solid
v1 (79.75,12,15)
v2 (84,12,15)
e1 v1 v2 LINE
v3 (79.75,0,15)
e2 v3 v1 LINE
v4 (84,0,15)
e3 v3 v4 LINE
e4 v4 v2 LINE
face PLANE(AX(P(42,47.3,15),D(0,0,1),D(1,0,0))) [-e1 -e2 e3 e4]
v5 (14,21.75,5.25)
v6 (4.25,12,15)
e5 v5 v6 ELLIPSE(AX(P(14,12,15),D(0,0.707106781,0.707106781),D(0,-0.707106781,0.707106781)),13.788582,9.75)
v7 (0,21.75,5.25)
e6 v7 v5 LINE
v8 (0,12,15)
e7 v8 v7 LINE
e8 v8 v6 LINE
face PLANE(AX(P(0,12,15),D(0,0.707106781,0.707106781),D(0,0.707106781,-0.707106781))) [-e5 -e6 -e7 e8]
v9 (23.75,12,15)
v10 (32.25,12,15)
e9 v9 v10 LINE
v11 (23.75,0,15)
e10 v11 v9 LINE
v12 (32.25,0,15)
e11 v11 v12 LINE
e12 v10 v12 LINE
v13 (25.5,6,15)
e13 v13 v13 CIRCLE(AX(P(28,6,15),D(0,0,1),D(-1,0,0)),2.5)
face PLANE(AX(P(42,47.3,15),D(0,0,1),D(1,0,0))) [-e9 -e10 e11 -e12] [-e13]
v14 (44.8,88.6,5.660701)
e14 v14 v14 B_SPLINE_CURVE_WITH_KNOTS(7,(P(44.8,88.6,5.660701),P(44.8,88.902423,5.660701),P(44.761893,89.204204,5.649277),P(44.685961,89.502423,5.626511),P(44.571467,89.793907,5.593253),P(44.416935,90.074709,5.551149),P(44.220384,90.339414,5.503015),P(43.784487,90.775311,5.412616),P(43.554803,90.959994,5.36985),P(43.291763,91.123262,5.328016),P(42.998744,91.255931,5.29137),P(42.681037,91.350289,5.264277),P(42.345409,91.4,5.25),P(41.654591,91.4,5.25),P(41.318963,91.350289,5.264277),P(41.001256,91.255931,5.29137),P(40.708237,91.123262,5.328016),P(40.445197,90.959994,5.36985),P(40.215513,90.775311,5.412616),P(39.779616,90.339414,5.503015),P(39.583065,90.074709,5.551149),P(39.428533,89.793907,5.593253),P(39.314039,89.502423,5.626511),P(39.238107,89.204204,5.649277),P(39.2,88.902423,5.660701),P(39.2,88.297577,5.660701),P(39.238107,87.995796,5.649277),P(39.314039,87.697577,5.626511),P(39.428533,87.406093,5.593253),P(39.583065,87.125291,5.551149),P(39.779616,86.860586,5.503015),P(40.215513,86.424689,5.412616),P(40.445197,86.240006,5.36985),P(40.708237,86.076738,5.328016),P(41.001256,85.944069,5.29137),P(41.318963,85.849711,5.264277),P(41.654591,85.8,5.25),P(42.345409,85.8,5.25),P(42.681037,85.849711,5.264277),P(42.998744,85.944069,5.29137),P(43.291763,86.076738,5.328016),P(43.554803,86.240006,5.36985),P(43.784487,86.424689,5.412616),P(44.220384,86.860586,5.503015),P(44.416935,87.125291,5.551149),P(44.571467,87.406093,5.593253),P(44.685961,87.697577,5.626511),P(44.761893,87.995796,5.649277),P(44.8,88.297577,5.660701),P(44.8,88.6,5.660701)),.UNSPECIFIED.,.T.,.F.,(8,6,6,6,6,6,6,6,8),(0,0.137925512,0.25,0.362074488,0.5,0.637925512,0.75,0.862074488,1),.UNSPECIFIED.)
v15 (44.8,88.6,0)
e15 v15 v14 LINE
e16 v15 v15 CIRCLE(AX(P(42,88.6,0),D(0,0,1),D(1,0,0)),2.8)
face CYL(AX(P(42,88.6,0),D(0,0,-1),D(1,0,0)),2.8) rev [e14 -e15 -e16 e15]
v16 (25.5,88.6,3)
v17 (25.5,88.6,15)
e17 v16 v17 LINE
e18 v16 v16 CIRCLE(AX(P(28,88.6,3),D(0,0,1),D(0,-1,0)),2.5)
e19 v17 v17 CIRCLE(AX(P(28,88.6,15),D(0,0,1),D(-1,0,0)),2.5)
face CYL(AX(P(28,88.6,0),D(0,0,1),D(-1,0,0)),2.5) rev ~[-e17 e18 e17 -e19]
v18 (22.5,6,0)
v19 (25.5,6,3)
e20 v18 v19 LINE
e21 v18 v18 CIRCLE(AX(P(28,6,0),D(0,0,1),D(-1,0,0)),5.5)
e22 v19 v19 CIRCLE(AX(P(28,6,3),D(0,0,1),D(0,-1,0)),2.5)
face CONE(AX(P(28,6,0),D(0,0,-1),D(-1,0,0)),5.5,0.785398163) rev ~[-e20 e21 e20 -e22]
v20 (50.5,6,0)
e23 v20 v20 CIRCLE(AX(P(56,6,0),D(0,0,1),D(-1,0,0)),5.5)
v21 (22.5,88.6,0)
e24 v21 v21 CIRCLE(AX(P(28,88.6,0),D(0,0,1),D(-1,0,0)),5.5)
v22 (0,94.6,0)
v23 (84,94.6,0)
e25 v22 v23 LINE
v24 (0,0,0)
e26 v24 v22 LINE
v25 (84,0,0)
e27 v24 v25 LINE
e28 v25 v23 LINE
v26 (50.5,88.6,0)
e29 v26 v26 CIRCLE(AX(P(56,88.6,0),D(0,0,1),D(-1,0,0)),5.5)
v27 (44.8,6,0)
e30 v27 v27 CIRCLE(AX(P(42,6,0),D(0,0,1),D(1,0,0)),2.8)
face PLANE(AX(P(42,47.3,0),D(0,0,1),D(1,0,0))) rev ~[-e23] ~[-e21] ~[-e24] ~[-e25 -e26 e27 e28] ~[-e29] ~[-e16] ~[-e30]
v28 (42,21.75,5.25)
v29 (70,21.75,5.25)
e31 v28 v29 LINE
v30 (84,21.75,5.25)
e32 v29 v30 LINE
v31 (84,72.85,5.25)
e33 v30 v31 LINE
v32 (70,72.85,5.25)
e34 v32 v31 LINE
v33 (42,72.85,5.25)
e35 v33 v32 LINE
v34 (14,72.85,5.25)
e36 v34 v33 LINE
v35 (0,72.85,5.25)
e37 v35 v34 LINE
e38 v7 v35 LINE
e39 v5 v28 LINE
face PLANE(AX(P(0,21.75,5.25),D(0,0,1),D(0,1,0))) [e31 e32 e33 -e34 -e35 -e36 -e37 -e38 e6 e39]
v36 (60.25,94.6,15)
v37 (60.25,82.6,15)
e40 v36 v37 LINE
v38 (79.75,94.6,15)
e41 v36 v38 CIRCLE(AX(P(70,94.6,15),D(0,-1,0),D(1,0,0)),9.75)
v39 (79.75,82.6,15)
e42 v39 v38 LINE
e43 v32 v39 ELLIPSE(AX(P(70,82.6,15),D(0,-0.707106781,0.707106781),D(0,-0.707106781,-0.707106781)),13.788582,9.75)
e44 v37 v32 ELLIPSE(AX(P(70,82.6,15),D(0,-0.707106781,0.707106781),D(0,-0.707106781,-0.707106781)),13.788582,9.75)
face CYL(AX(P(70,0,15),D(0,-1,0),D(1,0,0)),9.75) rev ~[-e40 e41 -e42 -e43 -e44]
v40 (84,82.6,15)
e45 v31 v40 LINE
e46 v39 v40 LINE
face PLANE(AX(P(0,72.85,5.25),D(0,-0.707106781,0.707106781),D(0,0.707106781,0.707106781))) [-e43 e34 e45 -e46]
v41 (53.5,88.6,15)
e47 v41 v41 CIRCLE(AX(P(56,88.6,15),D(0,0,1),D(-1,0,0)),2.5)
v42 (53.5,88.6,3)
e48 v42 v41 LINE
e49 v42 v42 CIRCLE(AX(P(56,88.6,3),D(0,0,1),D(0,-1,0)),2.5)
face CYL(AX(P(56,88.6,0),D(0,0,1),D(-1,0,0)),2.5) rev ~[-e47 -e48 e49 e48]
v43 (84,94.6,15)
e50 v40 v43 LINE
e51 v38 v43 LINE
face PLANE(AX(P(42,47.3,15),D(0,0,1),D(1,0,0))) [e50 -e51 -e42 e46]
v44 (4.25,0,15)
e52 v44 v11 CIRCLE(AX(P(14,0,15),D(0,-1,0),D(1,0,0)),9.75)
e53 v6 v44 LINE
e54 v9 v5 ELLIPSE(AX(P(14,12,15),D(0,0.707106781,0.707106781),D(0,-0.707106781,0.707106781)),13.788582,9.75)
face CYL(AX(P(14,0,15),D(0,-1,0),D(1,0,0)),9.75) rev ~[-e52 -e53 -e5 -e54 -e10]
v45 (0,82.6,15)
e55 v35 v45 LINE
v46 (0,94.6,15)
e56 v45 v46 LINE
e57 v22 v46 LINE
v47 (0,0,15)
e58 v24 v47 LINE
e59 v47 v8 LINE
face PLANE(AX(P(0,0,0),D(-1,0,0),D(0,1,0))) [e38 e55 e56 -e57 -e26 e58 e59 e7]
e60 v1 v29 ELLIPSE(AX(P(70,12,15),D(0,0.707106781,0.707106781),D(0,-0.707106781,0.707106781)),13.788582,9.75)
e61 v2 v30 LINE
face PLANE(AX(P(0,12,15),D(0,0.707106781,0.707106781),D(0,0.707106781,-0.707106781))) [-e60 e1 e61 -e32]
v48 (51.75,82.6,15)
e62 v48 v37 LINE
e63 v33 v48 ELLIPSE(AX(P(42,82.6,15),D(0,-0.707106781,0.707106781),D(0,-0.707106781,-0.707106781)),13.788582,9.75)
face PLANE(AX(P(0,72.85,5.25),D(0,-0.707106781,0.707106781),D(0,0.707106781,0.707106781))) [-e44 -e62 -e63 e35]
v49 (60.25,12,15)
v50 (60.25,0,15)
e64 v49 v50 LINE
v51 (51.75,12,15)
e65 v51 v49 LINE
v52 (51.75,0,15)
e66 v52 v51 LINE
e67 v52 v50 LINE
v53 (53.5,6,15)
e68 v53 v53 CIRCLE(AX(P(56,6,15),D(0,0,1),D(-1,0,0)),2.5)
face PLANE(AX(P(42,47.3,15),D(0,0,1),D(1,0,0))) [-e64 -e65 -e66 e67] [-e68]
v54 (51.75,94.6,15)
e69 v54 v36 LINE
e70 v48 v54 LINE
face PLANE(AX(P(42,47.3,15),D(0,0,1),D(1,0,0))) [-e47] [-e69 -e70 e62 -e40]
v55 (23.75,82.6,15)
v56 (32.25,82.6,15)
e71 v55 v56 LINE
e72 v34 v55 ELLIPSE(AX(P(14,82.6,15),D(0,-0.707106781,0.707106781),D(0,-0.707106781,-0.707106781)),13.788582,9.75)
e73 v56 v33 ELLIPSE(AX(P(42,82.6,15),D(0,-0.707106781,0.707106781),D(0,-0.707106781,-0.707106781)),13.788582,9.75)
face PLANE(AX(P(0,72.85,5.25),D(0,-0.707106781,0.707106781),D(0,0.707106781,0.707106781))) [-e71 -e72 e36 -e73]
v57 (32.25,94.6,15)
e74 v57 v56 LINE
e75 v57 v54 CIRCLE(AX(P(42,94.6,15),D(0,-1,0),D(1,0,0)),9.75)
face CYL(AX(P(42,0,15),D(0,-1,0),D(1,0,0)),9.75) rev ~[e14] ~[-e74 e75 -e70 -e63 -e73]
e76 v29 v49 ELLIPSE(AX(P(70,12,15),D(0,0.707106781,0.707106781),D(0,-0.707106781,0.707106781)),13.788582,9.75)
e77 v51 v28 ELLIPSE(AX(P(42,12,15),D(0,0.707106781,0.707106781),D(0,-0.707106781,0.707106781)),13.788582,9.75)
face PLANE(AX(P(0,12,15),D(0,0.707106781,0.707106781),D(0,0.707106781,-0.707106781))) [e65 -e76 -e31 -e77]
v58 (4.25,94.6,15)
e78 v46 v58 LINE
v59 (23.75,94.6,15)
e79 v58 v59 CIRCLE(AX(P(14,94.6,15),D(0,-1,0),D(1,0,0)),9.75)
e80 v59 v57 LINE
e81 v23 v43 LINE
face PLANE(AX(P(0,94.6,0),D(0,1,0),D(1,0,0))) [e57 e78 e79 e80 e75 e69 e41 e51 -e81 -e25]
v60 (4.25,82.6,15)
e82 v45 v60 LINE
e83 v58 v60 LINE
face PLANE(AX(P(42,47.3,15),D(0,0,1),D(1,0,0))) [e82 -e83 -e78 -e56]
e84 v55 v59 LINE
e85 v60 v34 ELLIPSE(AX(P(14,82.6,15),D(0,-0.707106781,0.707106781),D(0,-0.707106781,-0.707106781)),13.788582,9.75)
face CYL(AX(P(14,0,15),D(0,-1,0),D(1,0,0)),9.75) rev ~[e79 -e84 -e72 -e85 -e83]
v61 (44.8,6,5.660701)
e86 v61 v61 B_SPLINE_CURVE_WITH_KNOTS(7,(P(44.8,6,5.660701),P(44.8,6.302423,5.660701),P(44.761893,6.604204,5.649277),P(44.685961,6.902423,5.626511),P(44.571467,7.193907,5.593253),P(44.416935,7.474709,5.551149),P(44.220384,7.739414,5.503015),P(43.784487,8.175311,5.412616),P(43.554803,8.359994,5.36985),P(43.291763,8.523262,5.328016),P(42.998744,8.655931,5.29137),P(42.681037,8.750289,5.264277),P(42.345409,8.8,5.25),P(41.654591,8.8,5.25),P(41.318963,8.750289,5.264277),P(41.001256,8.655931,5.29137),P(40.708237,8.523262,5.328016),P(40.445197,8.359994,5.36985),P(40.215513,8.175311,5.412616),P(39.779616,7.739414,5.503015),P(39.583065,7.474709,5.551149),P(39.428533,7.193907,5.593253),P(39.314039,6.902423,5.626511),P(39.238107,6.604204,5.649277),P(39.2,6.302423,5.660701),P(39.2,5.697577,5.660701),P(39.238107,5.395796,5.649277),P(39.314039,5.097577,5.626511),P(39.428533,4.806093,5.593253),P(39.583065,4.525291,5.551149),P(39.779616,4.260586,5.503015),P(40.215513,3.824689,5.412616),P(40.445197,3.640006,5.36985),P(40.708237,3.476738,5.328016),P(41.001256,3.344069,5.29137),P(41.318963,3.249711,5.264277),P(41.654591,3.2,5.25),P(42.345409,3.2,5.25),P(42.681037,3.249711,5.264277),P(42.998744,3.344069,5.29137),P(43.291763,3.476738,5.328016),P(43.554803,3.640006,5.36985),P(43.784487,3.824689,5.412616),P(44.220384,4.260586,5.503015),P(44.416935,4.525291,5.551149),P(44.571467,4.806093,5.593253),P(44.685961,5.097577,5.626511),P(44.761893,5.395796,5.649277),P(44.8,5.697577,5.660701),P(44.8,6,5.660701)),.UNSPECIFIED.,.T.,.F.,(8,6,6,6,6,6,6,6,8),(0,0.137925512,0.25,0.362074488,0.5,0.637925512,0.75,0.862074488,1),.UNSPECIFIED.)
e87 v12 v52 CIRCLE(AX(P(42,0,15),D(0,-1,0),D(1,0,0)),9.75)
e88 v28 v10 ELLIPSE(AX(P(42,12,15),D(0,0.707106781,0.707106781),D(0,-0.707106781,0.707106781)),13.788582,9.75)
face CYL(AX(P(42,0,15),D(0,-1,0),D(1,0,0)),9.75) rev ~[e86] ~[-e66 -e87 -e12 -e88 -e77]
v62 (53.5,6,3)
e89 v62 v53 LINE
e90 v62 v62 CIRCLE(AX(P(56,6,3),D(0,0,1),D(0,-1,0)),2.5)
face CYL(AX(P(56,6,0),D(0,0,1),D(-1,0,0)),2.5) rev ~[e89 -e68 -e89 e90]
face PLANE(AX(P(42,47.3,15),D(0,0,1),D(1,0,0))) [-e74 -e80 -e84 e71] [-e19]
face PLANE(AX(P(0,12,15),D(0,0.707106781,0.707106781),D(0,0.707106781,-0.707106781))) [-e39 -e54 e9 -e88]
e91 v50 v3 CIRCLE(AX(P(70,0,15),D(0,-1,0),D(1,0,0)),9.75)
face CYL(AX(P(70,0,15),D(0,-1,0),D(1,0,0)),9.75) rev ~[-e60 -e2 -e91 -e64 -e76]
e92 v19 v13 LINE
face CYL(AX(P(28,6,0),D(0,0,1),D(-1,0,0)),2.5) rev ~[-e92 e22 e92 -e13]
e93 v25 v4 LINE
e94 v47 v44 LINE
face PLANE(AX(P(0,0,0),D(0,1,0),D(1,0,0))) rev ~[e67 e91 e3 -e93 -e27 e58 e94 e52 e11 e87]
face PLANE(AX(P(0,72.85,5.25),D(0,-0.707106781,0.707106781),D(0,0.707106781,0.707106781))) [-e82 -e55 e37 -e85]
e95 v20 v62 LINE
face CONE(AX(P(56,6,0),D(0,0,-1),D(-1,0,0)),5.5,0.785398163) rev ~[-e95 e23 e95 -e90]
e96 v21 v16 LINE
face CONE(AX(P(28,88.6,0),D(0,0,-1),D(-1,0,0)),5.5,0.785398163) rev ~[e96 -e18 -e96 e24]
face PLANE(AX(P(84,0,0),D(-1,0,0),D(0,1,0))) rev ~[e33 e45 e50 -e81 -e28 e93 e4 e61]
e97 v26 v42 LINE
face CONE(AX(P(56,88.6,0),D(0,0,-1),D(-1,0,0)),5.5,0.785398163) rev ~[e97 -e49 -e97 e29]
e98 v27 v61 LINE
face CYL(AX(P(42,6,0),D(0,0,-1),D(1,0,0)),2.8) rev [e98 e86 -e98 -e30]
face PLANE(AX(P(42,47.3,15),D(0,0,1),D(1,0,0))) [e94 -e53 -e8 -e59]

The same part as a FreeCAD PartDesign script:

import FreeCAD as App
import Part
import Sketcher
Q = App.Units.Quantity


def add_polygon(sketch, points):
    """Adds a closed chain of lines whose ends are joined by coincident constraints."""
    first, n = sketch.GeometryCount, len(points)
    for a, b in zip(points, points[1:] + points[:1]):
        sketch.addGeometry(Part.LineSegment(App.Vector(*a, 0), App.Vector(*b, 0)), False)
    for i in range(n):
        sketch.addConstraint(Sketcher.Constraint("Coincident", first + i, 2, first + (i + 1) % n, 1))

doc = App.newDocument("Part")
body = doc.addObject("PartDesign::Body", "Body")

# Sketch on XY plane
sketch1 = doc.addObject("Sketcher::SketchObject", "Sketch")
body.addObject(sketch1)
sketch1.AttachmentSupport = (doc.XY_Plane, [""])
sketch1.MapMode = "FlatFace"
add_polygon(sketch1, [(0, 95), (0, 0), (84, 0), (84, 95)])  # lines 0-3
sketch1.addConstraint(Sketcher.Constraint("Vertical", 0))
sketch1.addConstraint(Sketcher.Constraint("Horizontal", 1))
sketch1.addConstraint(Sketcher.Constraint("Vertical", 2))
sketch1.addConstraint(Sketcher.Constraint("Horizontal", 3))
sketch1.addConstraint(Sketcher.Constraint("Coincident", 0, 2, -1, 1))
sketch1.addConstraint(Sketcher.Constraint("DistanceX", 1, 1, 1, 2, Q("84 mm")))
sketch1.addConstraint(Sketcher.Constraint("DistanceY", 0, 2, 0, 1, Q("94.6 mm")))
pad1 = doc.addObject("PartDesign::Pad", "Pad")
body.addObject(pad1)
pad1.Profile = sketch1
pad1.Length = 15

# Sketch on XZ plane
sketch2 = doc.addObject("Sketcher::SketchObject", "Sketch001")
body.addObject(sketch2)
sketch2.AttachmentSupport = (doc.XZ_Plane, [""])
sketch2.MapMode = "FlatFace"
sketch2.addGeometry(Part.Circle(App.Vector(14, 15, 0), App.Vector(0, 0, 1), 10), False)
sketch2.addConstraint(Sketcher.Constraint("Diameter", 0, Q("19.5 mm")))
sketch2.addConstraint(Sketcher.Constraint("DistanceX", -1, 1, 0, 3, Q("14 mm")))
sketch2.addConstraint(Sketcher.Constraint("DistanceY", -1, 1, 0, 3, Q("15 mm")))
pocket1 = doc.addObject("PartDesign::Pocket", "Pocket")
body.addObject(pocket1)
pocket1.Profile = sketch2
pocket1.Type = "ThroughAll"
doc.recompute()

linearpattern = doc.addObject("PartDesign::LinearPattern", "LinearPattern")
body.addObject(linearpattern)
linearpattern.Originals = [pocket1]
linearpattern.Direction = (doc.X_Axis, [""])
linearpattern.Mode = "offset"
linearpattern.Offset = 28
linearpattern.Occurrences = 3
body.Tip = linearpattern

# Sketch on XY plane
sketch3 = doc.addObject("Sketcher::SketchObject", "Sketch002")
body.addObject(sketch3)
sketch3.AttachmentSupport = (doc.XY_Plane, [""])
sketch3.MapMode = "FlatFace"
sketch3.addGeometry(Part.Circle(App.Vector(28, 6, 0), App.Vector(0, 0, 1), 2.5), False)
sketch3.addGeometry(Part.Circle(App.Vector(56, 6, 0), App.Vector(0, 0, 1), 2.5), False)
sketch3.addGeometry(Part.Circle(App.Vector(28, 88.6, 0), App.Vector(0, 0, 1), 2.5), False)
sketch3.addGeometry(Part.Circle(App.Vector(56, 88.6, 0), App.Vector(0, 0, 1), 2.5), False)
sketch3.addConstraint(Sketcher.Constraint("Equal", 0, 1))
sketch3.addConstraint(Sketcher.Constraint("Equal", 1, 2))
sketch3.addConstraint(Sketcher.Constraint("Equal", 2, 3))
sketch3.addConstraint(Sketcher.Constraint("Horizontal", 0, 3, 1, 3))
sketch3.addConstraint(Sketcher.Constraint("Horizontal", 2, 3, 3, 3))
sketch3.addConstraint(Sketcher.Constraint("Vertical", 0, 3, 2, 3))
sketch3.addConstraint(Sketcher.Constraint("Vertical", 1, 3, 3, 3))
sketch3.addConstraint(Sketcher.Constraint("Diameter", 0, Q("5 mm")))
sketch3.addConstraint(Sketcher.Constraint("DistanceX", -1, 1, 0, 3, Q("28 mm")))
sketch3.addConstraint(Sketcher.Constraint("DistanceY", -1, 1, 0, 3, Q("6 mm")))
sketch3.addConstraint(Sketcher.Constraint("DistanceX", -1, 1, 1, 3, Q("56 mm")))
sketch3.addConstraint(Sketcher.Constraint("DistanceY", -1, 1, 2, 3, Q("88.6 mm")))
doc.recompute()
hole = doc.addObject("PartDesign::Hole", "Hole")
body.addObject(hole)
hole.Profile = sketch3
hole.ThreadType = "None"
hole.Diameter = 5
hole.DepthType = "Dimension"
hole.Depth = 25
hole.DrillPoint = "Flat"
hole.HoleCutType = "Countersink"
hole.HoleCutDiameter = 11
hole.HoleCutCountersinkAngle = 90
hole.Reversed = True

# Sketch on XY plane
sketch4 = doc.addObject("Sketcher::SketchObject", "Sketch003")
body.addObject(sketch4)
sketch4.AttachmentSupport = (doc.XY_Plane, [""])
sketch4.MapMode = "FlatFace"
sketch4.addGeometry(Part.Circle(App.Vector(42, 88.6, 0), App.Vector(0, 0, 1), 2.8), False)
sketch4.addGeometry(Part.Circle(App.Vector(42, 6, 0), App.Vector(0, 0, 1), 2.8), False)
sketch4.addConstraint(Sketcher.Constraint("Equal", 0, 1))
sketch4.addConstraint(Sketcher.Constraint("Vertical", 0, 3, 1, 3))
sketch4.addConstraint(Sketcher.Constraint("Diameter", 0, Q("5.6 mm")))
sketch4.addConstraint(Sketcher.Constraint("DistanceX", -1, 1, 0, 3, Q("42 mm")))
sketch4.addConstraint(Sketcher.Constraint("DistanceY", -1, 1, 1, 3, Q("6 mm")))
sketch4.addConstraint(Sketcher.Constraint("DistanceY", -1, 1, 0, 3, Q("88.6 mm")))
pocket2 = doc.addObject("PartDesign::Pocket", "Pocket001")
body.addObject(pocket2)
pocket2.Profile = sketch4
pocket2.Type = "ThroughAll"
pocket2.Reversed = True

# Sketch on YZ plane
sketch5 = doc.addObject("Sketcher::SketchObject", "Sketch004")
body.addObject(sketch5)
sketch5.AttachmentSupport = (doc.YZ_Plane, [""])
sketch5.MapMode = "FlatFace"
add_polygon(sketch5, [(83, 15), (12, 15), (22, 5), (73, 5)])  # lines 0-3
sketch5.addConstraint(Sketcher.Constraint("Horizontal", 0))
sketch5.addConstraint(Sketcher.Constraint("Horizontal", 2))
sketch5.addConstraint(Sketcher.Constraint("Perpendicular", 1, 3))
sketch5.addConstraint(Sketcher.Constraint("Equal", 1, 3))
sketch5.addConstraint(Sketcher.Constraint("DistanceX", 0, 2, 0, 1, Q("70.6 mm")))
sketch5.addConstraint(Sketcher.Constraint("DistanceX", 2, 1, 2, 2, Q("51.1 mm")))
sketch5.addConstraint(Sketcher.Constraint("DistanceX", -1, 1, 0, 2, Q("12 mm")))
sketch5.addConstraint(Sketcher.Constraint("DistanceY", -1, 1, 0, 2, Q("15 mm")))
pocket3 = doc.addObject("PartDesign::Pocket", "Pocket002")
body.addObject(pocket3)
pocket3.Profile = sketch5
pocket3.Type = "ThroughAll"
pocket3.Reversed = True

doc.recompute()
